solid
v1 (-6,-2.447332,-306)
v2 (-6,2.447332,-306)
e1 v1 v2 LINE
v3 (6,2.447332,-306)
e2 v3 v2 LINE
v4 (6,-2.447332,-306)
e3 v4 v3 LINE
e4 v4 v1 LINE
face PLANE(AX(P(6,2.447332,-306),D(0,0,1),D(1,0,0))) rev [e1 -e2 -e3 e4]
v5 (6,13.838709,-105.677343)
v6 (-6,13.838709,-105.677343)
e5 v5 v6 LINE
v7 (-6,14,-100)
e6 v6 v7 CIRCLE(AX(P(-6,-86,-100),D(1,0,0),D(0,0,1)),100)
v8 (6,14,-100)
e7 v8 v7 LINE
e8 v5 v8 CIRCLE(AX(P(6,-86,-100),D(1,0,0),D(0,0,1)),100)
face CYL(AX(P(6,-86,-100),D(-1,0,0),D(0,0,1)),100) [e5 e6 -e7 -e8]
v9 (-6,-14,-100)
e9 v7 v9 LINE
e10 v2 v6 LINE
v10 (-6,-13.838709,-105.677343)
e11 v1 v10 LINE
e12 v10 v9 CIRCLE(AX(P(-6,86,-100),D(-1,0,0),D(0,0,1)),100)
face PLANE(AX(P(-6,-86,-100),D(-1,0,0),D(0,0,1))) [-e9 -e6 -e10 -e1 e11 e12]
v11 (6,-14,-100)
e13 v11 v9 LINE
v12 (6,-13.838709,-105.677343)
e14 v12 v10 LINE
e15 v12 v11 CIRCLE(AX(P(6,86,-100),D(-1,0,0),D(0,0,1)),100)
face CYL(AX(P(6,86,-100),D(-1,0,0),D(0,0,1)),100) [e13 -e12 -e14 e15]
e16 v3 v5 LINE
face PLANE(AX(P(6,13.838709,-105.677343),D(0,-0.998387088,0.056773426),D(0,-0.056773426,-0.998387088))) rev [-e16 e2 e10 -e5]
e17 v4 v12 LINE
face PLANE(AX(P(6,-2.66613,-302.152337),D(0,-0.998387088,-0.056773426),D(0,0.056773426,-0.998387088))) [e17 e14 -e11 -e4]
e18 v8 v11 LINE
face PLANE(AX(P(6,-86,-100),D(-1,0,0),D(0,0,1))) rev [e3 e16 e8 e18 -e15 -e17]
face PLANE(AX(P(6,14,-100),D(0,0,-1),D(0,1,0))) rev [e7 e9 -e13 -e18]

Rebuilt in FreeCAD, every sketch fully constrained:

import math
import FreeCAD as App
import Part
import Sketcher

V = App.Vector

doc = App.newDocument("Part")
body = doc.addObject("PartDesign::Body", "Body")

sketch1 = doc.addObject("Sketcher::SketchObject", "Sketch")
body.addObject(sketch1)
sketch1.AttachmentSupport = (doc.YZ_Plane, [""])
sketch1.MapMode = "FlatFace"
sketch1.addGeometry(Part.LineSegment(V(2.7, -302.2, 0), V(13.8, -105.7, 0)), False)
sketch1.addGeometry(Part.ArcOfCircle(Part.Circle(V(-86, -100, 0), V(0, 0, 1), 100), math.radians(-3.25), math.radians(0)), False)
sketch1.addGeometry(Part.LineSegment(V(14, -100, 0), V(0, -100, 0)), False)
sketch1.addGeometry(Part.LineSegment(V(0, -100, 0), V(0, -306, 0)), False)
sketch1.addGeometry(Part.LineSegment(V(0, -306, 0), V(2.4, -306, 0)), False)
sketch1.addGeometry(Part.LineSegment(V(2.4, -306, 0), V(2.7, -302.2, 0)), False)
sketch1.addConstraint(Sketcher.Constraint("Tangent", 0, 2, 1, 1))
sketch1.addConstraint(Sketcher.Constraint("Coincident", 1, 2, 2, 1))
sketch1.addConstraint(Sketcher.Constraint("Coincident", 2, 2, 3, 1))
sketch1.addConstraint(Sketcher.Constraint("Coincident", 3, 2, 4, 1))
sketch1.addConstraint(Sketcher.Constraint("Coincident", 4, 2, 5, 1))
sketch1.addConstraint(Sketcher.Constraint("Coincident", 5, 2, 0, 1))
sketch1.addConstraint(Sketcher.Constraint("Horizontal", 2))
sketch1.addConstraint(Sketcher.Constraint("Vertical", 3))
sketch1.addConstraint(Sketcher.Constraint("Horizontal", 4))
sketch1.addConstraint(Sketcher.Constraint("PointOnObject", 2, 2, -2))
sketch1.addConstraint(Sketcher.Constraint("Parallel", 0, 5))
sketch1.addConstraint(Sketcher.Constraint("Radius", 1, 99.999999))
sketch1.addConstraint(Sketcher.Constraint("DistanceX", 2, 2, 2, 1, 14.0))
sketch1.addConstraint(Sketcher.Constraint("DistanceY", 3, 2, 3, 1, 206.0))
sketch1.addConstraint(Sketcher.Constraint("DistanceY", 1, 3, -1, 1, 100.0))
sketch1.addConstraint(Sketcher.Constraint("DistanceY", 1, 2, -1, 1, 100.0))
sketch1.addConstraint(Sketcher.Constraint("DistanceX", 4, 1, 4, 2, 2.447332))
sketch1.addConstraint(Sketcher.Constraint("Distance", 5, 3.853879))
pad1 = doc.addObject("PartDesign::Pad", "Pad")
body.addObject(pad1)
pad1.Profile = sketch1
pad1.Length = 12
pad1.Midplane = True
doc.recompute()

mirrored = doc.addObject("PartDesign::Mirrored", "Mirrored")
body.addObject(mirrored)
mirrored.Originals = [pad1]
mirrored.MirrorPlane = (doc.XZ_Plane, [""])
body.Tip = mirrored

doc.recompute()
